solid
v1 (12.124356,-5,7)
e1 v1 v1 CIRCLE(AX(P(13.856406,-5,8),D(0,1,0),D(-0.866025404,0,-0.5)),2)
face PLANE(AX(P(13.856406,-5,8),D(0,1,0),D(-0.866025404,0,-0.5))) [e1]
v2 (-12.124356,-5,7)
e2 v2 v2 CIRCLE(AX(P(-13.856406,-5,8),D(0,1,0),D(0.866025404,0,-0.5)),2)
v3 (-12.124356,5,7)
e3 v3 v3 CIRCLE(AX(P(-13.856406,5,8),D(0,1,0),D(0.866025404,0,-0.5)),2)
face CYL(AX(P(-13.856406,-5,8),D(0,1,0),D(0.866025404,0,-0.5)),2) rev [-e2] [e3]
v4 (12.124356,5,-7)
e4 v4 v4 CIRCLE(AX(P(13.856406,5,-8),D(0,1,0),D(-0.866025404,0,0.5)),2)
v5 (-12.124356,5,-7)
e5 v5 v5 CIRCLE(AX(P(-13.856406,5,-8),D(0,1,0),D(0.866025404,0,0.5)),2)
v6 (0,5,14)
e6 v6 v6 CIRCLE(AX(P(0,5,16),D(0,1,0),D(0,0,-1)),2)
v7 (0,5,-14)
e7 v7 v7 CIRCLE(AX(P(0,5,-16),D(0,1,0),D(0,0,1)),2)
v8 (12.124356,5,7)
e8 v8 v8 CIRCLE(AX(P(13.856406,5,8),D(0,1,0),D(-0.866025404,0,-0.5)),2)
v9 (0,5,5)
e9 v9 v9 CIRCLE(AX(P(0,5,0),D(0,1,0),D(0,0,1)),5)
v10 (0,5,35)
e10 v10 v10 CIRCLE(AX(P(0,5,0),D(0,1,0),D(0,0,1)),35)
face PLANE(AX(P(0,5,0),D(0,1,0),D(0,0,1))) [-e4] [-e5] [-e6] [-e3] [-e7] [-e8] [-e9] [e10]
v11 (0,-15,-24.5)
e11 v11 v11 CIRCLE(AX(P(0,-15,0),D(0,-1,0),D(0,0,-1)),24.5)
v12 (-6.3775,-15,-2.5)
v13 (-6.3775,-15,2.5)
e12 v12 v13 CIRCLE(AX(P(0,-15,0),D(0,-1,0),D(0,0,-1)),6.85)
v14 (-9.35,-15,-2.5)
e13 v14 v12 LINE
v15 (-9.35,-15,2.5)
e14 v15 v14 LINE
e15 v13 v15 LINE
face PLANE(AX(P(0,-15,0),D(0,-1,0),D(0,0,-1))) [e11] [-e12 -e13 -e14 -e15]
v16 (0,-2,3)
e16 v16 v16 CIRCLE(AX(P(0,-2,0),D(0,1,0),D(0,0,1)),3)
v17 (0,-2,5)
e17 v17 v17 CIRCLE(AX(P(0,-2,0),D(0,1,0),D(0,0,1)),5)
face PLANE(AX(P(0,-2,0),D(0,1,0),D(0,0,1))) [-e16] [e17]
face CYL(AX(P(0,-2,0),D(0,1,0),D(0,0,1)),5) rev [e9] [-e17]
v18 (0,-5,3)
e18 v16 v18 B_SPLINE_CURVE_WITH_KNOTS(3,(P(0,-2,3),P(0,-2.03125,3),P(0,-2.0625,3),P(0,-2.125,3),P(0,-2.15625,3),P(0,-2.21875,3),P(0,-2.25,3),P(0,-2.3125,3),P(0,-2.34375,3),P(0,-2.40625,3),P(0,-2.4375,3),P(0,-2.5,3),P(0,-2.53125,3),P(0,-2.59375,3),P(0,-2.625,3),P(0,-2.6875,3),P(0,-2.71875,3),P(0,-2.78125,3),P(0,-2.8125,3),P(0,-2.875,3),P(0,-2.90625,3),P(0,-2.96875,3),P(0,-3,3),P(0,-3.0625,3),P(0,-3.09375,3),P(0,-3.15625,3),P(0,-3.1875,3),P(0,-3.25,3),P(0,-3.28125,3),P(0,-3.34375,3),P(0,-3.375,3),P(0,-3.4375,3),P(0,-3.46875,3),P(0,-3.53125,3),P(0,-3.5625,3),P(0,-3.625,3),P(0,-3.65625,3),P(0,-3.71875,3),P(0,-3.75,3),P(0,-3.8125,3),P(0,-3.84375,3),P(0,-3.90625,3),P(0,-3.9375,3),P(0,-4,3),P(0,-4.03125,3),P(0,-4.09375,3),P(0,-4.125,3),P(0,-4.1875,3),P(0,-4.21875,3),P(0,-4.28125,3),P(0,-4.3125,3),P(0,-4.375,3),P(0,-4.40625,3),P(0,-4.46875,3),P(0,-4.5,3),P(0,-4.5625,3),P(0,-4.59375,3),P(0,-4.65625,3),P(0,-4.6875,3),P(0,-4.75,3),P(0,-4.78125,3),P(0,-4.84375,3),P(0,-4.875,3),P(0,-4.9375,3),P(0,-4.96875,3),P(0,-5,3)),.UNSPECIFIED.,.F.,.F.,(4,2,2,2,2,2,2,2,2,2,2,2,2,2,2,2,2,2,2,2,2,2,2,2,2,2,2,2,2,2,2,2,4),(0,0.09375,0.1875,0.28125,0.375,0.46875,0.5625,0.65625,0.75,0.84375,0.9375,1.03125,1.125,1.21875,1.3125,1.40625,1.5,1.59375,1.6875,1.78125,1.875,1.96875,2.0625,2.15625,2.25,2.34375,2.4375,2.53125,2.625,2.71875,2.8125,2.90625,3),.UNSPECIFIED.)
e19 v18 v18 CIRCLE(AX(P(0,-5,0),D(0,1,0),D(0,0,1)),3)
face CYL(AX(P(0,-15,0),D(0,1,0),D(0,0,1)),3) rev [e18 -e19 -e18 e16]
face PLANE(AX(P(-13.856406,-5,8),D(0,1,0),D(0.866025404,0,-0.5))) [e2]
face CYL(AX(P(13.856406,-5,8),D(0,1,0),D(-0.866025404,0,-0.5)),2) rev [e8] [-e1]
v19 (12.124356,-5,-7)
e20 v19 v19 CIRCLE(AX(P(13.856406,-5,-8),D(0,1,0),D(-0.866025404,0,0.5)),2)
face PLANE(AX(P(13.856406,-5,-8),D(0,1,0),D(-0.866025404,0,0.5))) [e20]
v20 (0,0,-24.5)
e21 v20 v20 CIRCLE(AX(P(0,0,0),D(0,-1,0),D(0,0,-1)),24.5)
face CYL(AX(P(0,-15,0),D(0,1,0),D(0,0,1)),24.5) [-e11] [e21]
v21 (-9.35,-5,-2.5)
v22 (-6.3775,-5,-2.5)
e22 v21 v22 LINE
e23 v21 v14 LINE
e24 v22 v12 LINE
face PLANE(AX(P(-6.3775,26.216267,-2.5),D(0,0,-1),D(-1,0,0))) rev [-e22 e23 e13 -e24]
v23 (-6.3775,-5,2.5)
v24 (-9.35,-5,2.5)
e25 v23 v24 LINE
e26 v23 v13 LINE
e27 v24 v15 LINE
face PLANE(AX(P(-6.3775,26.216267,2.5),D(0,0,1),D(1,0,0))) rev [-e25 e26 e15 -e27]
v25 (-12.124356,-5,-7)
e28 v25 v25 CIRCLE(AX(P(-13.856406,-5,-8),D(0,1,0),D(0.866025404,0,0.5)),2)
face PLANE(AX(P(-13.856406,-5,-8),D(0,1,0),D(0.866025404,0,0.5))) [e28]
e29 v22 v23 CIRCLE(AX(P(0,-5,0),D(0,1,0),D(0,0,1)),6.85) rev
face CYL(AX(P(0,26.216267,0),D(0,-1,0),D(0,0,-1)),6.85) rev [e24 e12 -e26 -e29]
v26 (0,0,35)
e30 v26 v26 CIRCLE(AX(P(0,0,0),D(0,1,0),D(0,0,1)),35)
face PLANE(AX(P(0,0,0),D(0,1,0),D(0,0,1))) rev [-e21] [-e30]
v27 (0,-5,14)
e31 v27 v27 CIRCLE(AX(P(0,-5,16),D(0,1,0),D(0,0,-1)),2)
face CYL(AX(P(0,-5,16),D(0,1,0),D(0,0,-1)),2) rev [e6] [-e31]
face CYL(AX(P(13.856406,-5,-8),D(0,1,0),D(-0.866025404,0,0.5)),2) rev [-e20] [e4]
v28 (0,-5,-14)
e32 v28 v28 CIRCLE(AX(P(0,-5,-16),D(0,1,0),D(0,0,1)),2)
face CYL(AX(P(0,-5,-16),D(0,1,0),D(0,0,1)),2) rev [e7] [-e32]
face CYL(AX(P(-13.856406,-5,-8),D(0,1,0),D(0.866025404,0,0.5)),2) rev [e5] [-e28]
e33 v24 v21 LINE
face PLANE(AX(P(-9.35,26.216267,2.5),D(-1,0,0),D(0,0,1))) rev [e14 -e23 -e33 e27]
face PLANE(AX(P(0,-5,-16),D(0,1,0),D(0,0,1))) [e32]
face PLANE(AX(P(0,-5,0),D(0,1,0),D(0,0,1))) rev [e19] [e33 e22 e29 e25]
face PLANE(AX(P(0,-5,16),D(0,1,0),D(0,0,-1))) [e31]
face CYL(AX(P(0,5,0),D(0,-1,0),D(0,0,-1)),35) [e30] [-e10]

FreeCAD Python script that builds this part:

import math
import FreeCAD as App
import Part
import Sketcher
from FreeCAD import Vector
Q = App.Units.Quantity

doc = App.newDocument("Part")
body = doc.addObject("PartDesign::Body", "Body")

sketch1 = doc.addObject("Sketcher::SketchObject", "Sketch")
body.addObject(sketch1)
sketch1.AttachmentSupport = (doc.XZ_Plane, [""])
sketch1.MapMode = "FlatFace"
sketch1.addGeometry(Part.Circle(Vector(0, 0, 0), Vector(0, 0, 1), 35), False)
sketch1.addConstraint(Sketcher.Constraint("Coincident", 0, 3, -1, 1))
sketch1.addConstraint(Sketcher.Constraint("Diameter", 0, Q("70 mm")))
pad1 = doc.addObject("PartDesign::Pad", "Pad")
body.addObject(pad1)
pad1.Profile = sketch1
pad1.Length = 5
pad1.Reversed = True

sketch2 = doc.addObject("Sketcher::SketchObject", "Sketch001")
body.addObject(sketch2)
sketch2.AttachmentSupport = (doc.XZ_Plane, [""])
sketch2.MapMode = "FlatFace"
sketch2.addGeometry(Part.Circle(Vector(0, 0, 0), Vector(0, 0, 1), 24.5), False)
sketch2.addConstraint(Sketcher.Constraint("Coincident", 0, 3, -1, 1))
sketch2.addConstraint(Sketcher.Constraint("Diameter", 0, Q("49 mm")))
pad2 = doc.addObject("PartDesign::Pad", "Pad001")
body.addObject(pad2)
pad2.Profile = sketch2
pad2.Length = 15

sketch3 = doc.addObject("Sketcher::SketchObject", "Sketch002")
body.addObject(sketch3)
sketch3.AttachmentSupport = (doc.XZ_Plane, [""])
sketch3.MapMode = "FlatFace"
sketch3.AttachmentOffset = App.Placement(Vector(0, 0, 15), App.Rotation())
sketch3.addGeometry(Part.Circle(Vector(0, 0, 0), Vector(0, 0, 1), 6.85), False)
sketch3.addConstraint(Sketcher.Constraint("Coincident", 0, 3, -1, 1))
sketch3.addConstraint(Sketcher.Constraint("Diameter", 0, Q("13.7 mm")))
pad3 = doc.addObject("PartDesign::Pad", "Pad002")
body.addObject(pad3)
pad3.Profile = sketch3
pad3.Length = 30

sketch4 = doc.addObject("Sketcher::SketchObject", "Sketch003")
body.addObject(sketch4)
sketch4.AttachmentSupport = (doc.XZ_Plane, [""])
sketch4.MapMode = "FlatFace"
sketch4.AttachmentOffset = App.Placement(Vector(0, 0, -5), App.Rotation())
sketch4.addGeometry(Part.Circle(Vector(0, -16, 0), Vector(0, 0, 1), 2), False)
sketch4.addConstraint(Sketcher.Constraint("PointOnObject", 0, 3, -2))
sketch4.addConstraint(Sketcher.Constraint("Diameter", 0, Q("4 mm")))
sketch4.addConstraint(Sketcher.Constraint("DistanceY", 0, 3, -1, 1, Q("16 mm")))
pocket1 = doc.addObject("PartDesign::Pocket", "Pocket")
body.addObject(pocket1)
pocket1.Profile = sketch4
pocket1.Length = 10
pocket1.Reversed = True
doc.recompute()

polarpattern = doc.addObject("PartDesign::PolarPattern", "PolarPattern")
body.addObject(polarpattern)
polarpattern.Originals = [pocket1]
polarpattern.Axis = (doc.Y_Axis, [""])
polarpattern.Angle = 360
polarpattern.Occurrences = 6
body.Tip = polarpattern

sketch5 = doc.addObject("Sketcher::SketchObject", "Sketch004")
body.addObject(sketch5)
sketch5.AttachmentSupport = (doc.XZ_Plane, [""])
sketch5.MapMode = "FlatFace"
sketch5.AttachmentOffset = App.Placement(Vector(0, 0, 15), App.Rotation())
sketch5.addGeometry(Part.LineSegment(Vector(-3.4775, 2.5, 0), Vector(-6.3775, 2.5, 0)), False)
sketch5.addGeometry(Part.ArcOfCircle(Part.Circle(Vector(0, 0, 0), Vector(0, 0, 1), 6.85), math.radians(158.594663), math.radians(201.405337)), False)
sketch5.addGeometry(Part.LineSegment(Vector(-6.3775, -2.5, 0), Vector(-3.4775, -2.5, 0)), False)
sketch5.addGeometry(Part.LineSegment(Vector(-3.4775, -2.5, 0), Vector(-3.4775, 2.5, 0)), False)
sketch5.addConstraint(Sketcher.Constraint("Coincident", 0, 2, 1, 1))
sketch5.addConstraint(Sketcher.Constraint("Coincident", 1, 2, 2, 1))
sketch5.addConstraint(Sketcher.Constraint("Coincident", 2, 2, 3, 1))
sketch5.addConstraint(Sketcher.Constraint("Coincident", 3, 2, 0, 1))
sketch5.addConstraint(Sketcher.Constraint("Horizontal", 0))
sketch5.addConstraint(Sketcher.Constraint("Horizontal", 2))
sketch5.addConstraint(Sketcher.Constraint("Vertical", 3))
sketch5.addConstraint(Sketcher.Constraint("Coincident", 1, 3, -1, 1))
sketch5.addConstraint(Sketcher.Constraint("Vertical", 0, 2, 1, 2))
sketch5.addConstraint(Sketcher.Constraint("DistanceY", 3, 1, 3, 2, Q("5 mm")))
sketch5.addConstraint(Sketcher.Constraint("Radius", 1, Q("6.85 mm")))
sketch5.addConstraint(Sketcher.Constraint("DistanceX", 0, 2, 0, 1, Q("2.9 mm")))
pocket2 = doc.addObject("PartDesign::Pocket", "Pocket001")
body.addObject(pocket2)
pocket2.Profile = sketch5
pocket2.Length = 30
pocket2.Reversed = True

sketch6 = doc.addObject("Sketcher::SketchObject", "Sketch005")
body.addObject(sketch6)
sketch6.AttachmentSupport = (doc.XZ_Plane, [""])
sketch6.MapMode = "FlatFace"
sketch6.AttachmentOffset = App.Placement(Vector(0, 0, 5), App.Rotation())
sketch6.addGeometry(Part.LineSegment(Vector(-9.35, -2.5, 0), Vector(-6.3775, -2.5, 0)), False)
sketch6.addGeometry(Part.ArcOfCircle(Part.Circle(Vector(0, 0, 0), Vector(0, 0, 1), 6.85), math.radians(-158.594663), math.radians(158.594663)), False)
sketch6.addGeometry(Part.LineSegment(Vector(-6.3775, 2.5, 0), Vector(-9.35, 2.5, 0)), False)
sketch6.addGeometry(Part.LineSegment(Vector(-9.35, 2.5, 0), Vector(-9.35, -2.5, 0)), False)
sketch6.addConstraint(Sketcher.Constraint("Coincident", 0, 2, 1, 1))
sketch6.addConstraint(Sketcher.Constraint("Coincident", 1, 2, 2, 1))
sketch6.addConstraint(Sketcher.Constraint("Coincident", 2, 2, 3, 1))
sketch6.addConstraint(Sketcher.Constraint("Coincident", 3, 2, 0, 1))
sketch6.addConstraint(Sketcher.Constraint("Horizontal", 0))
sketch6.addConstraint(Sketcher.Constraint("Horizontal", 2))
sketch6.addConstraint(Sketcher.Constraint("Vertical", 3))
sketch6.addConstraint(Sketcher.Constraint("Coincident", 1, 3, -1, 1))
sketch6.addConstraint(Sketcher.Constraint("Vertical", 0, 2, 1, 2))
sketch6.addConstraint(Sketcher.Constraint("DistanceY", 3, 2, 3, 1, Q("5 mm")))
sketch6.addConstraint(Sketcher.Constraint("Radius", 1, Q("6.85 mm")))
sketch6.addConstraint(Sketcher.Constraint("DistanceX", 2, 2, -1, 1, Q("9.35 mm")))
pocket3 = doc.addObject("PartDesign::Pocket", "Pocket002")
body.addObject(pocket3)
pocket3.Profile = sketch6
pocket3.Length = 40
pocket3.Reversed = True

sketch7 = doc.addObject("Sketcher::SketchObject", "Sketch006")
body.addObject(sketch7)
sketch7.AttachmentSupport = (doc.XZ_Plane, [""])
sketch7.MapMode = "FlatFace"
sketch7.AttachmentOffset = App.Placement(Vector(0, 0, -5), App.Rotation())
sketch7.addGeometry(Part.Circle(Vector(0, 0, 0), Vector(0, 0, 1), 5), False)
sketch7.addConstraint(Sketcher.Constraint("Coincident", 0, 3, -1, 1))
sketch7.addConstraint(Sketcher.Constraint("Diameter", 0, Q("10 mm")))
pocket4 = doc.addObject("PartDesign::Pocket", "Pocket003")
body.addObject(pocket4)
pocket4.Profile = sketch7
pocket4.Length = 7
pocket4.Reversed = True

sketch8 = doc.addObject("Sketcher::SketchObject", "Sketch007")
body.addObject(sketch8)
sketch8.AttachmentSupport = (doc.XZ_Plane, [""])
sketch8.MapMode = "FlatFace"
sketch8.AttachmentOffset = App.Placement(Vector(0, 0, 2), App.Rotation())
sketch8.addGeometry(Part.Circle(Vector(0, 0, 0), Vector(0, 0, 1), 3), False)
sketch8.addConstraint(Sketcher.Constraint("Coincident", 0, 3, -1, 1))
sketch8.addConstraint(Sketcher.Constraint("Diameter", 0, Q("6 mm")))
pocket5 = doc.addObject("PartDesign::Pocket", "Pocket004")
body.addObject(pocket5)
pocket5.Profile = sketch8
pocket5.Type = "ThroughAll"
pocket5.Reversed = True

doc.recompute()
